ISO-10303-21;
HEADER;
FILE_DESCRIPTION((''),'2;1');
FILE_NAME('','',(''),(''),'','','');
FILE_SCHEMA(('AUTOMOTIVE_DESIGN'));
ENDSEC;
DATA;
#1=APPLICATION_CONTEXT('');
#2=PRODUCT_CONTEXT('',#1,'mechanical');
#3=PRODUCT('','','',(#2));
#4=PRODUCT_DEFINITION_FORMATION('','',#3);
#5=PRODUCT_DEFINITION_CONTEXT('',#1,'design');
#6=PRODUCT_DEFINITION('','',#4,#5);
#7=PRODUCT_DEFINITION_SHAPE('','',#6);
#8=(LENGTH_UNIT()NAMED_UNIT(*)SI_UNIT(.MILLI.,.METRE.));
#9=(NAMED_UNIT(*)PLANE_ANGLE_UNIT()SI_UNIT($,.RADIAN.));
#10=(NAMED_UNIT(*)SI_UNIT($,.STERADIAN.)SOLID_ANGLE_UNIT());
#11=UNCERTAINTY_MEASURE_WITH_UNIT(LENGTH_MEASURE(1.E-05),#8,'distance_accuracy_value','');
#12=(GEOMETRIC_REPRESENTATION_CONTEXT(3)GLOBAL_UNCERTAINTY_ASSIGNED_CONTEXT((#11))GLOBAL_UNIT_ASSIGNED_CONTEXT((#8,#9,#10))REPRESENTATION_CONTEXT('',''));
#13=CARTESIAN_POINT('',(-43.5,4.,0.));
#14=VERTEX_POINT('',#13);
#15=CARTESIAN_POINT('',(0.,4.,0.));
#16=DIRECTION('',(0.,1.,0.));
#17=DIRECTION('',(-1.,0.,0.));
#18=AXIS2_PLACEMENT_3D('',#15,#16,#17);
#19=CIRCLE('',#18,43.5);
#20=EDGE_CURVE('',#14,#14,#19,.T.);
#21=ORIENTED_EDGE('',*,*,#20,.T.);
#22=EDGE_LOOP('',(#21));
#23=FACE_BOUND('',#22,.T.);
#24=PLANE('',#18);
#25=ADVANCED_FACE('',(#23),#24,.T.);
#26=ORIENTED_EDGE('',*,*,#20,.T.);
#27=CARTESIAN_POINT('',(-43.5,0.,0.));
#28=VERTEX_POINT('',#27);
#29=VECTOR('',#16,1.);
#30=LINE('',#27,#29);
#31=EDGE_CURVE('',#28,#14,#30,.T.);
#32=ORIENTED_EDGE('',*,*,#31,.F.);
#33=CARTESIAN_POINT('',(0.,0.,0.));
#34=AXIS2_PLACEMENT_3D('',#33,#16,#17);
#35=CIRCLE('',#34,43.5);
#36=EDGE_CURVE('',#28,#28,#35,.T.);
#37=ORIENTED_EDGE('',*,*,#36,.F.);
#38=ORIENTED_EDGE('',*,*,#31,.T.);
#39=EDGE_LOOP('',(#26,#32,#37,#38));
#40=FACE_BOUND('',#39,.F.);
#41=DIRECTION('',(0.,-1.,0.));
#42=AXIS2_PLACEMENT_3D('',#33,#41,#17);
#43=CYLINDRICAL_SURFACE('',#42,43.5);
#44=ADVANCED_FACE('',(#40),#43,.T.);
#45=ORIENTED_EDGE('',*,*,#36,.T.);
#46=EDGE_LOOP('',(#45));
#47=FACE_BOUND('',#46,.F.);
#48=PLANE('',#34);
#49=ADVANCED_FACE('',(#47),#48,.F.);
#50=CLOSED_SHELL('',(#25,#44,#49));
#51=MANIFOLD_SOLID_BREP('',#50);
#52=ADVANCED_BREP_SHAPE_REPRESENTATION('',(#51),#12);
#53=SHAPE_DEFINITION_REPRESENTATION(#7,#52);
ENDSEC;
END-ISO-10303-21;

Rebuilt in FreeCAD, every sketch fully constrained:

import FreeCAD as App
import Part
import Sketcher
Q = App.Units.Quantity

doc = App.newDocument("Part")
body = doc.addObject("PartDesign::Body", "Body")

# Sketch on XZ plane
sketch1 = body.newObject("Sketcher::SketchObject", "Sketch")
sketch1.AttachmentSupport = (doc.getObject("XZ_Plane"), [""])
sketch1.MapMode = "FlatFace"
sketch1.addGeometry(Part.Circle(App.Vector(0, 0, 0), App.Vector(0, 0, 1), 44), False)
sketch1.addConstraint([
    Sketcher.Constraint("Coincident", 0, 3, -1, 1),
    Sketcher.Constraint("Diameter", 0, Q("87 mm")),
])
pad1 = body.newObject("PartDesign::Pad", "Pad")
pad1.Profile = sketch1
pad1.Length = 4
pad1.Reversed = True

doc.recompute()
